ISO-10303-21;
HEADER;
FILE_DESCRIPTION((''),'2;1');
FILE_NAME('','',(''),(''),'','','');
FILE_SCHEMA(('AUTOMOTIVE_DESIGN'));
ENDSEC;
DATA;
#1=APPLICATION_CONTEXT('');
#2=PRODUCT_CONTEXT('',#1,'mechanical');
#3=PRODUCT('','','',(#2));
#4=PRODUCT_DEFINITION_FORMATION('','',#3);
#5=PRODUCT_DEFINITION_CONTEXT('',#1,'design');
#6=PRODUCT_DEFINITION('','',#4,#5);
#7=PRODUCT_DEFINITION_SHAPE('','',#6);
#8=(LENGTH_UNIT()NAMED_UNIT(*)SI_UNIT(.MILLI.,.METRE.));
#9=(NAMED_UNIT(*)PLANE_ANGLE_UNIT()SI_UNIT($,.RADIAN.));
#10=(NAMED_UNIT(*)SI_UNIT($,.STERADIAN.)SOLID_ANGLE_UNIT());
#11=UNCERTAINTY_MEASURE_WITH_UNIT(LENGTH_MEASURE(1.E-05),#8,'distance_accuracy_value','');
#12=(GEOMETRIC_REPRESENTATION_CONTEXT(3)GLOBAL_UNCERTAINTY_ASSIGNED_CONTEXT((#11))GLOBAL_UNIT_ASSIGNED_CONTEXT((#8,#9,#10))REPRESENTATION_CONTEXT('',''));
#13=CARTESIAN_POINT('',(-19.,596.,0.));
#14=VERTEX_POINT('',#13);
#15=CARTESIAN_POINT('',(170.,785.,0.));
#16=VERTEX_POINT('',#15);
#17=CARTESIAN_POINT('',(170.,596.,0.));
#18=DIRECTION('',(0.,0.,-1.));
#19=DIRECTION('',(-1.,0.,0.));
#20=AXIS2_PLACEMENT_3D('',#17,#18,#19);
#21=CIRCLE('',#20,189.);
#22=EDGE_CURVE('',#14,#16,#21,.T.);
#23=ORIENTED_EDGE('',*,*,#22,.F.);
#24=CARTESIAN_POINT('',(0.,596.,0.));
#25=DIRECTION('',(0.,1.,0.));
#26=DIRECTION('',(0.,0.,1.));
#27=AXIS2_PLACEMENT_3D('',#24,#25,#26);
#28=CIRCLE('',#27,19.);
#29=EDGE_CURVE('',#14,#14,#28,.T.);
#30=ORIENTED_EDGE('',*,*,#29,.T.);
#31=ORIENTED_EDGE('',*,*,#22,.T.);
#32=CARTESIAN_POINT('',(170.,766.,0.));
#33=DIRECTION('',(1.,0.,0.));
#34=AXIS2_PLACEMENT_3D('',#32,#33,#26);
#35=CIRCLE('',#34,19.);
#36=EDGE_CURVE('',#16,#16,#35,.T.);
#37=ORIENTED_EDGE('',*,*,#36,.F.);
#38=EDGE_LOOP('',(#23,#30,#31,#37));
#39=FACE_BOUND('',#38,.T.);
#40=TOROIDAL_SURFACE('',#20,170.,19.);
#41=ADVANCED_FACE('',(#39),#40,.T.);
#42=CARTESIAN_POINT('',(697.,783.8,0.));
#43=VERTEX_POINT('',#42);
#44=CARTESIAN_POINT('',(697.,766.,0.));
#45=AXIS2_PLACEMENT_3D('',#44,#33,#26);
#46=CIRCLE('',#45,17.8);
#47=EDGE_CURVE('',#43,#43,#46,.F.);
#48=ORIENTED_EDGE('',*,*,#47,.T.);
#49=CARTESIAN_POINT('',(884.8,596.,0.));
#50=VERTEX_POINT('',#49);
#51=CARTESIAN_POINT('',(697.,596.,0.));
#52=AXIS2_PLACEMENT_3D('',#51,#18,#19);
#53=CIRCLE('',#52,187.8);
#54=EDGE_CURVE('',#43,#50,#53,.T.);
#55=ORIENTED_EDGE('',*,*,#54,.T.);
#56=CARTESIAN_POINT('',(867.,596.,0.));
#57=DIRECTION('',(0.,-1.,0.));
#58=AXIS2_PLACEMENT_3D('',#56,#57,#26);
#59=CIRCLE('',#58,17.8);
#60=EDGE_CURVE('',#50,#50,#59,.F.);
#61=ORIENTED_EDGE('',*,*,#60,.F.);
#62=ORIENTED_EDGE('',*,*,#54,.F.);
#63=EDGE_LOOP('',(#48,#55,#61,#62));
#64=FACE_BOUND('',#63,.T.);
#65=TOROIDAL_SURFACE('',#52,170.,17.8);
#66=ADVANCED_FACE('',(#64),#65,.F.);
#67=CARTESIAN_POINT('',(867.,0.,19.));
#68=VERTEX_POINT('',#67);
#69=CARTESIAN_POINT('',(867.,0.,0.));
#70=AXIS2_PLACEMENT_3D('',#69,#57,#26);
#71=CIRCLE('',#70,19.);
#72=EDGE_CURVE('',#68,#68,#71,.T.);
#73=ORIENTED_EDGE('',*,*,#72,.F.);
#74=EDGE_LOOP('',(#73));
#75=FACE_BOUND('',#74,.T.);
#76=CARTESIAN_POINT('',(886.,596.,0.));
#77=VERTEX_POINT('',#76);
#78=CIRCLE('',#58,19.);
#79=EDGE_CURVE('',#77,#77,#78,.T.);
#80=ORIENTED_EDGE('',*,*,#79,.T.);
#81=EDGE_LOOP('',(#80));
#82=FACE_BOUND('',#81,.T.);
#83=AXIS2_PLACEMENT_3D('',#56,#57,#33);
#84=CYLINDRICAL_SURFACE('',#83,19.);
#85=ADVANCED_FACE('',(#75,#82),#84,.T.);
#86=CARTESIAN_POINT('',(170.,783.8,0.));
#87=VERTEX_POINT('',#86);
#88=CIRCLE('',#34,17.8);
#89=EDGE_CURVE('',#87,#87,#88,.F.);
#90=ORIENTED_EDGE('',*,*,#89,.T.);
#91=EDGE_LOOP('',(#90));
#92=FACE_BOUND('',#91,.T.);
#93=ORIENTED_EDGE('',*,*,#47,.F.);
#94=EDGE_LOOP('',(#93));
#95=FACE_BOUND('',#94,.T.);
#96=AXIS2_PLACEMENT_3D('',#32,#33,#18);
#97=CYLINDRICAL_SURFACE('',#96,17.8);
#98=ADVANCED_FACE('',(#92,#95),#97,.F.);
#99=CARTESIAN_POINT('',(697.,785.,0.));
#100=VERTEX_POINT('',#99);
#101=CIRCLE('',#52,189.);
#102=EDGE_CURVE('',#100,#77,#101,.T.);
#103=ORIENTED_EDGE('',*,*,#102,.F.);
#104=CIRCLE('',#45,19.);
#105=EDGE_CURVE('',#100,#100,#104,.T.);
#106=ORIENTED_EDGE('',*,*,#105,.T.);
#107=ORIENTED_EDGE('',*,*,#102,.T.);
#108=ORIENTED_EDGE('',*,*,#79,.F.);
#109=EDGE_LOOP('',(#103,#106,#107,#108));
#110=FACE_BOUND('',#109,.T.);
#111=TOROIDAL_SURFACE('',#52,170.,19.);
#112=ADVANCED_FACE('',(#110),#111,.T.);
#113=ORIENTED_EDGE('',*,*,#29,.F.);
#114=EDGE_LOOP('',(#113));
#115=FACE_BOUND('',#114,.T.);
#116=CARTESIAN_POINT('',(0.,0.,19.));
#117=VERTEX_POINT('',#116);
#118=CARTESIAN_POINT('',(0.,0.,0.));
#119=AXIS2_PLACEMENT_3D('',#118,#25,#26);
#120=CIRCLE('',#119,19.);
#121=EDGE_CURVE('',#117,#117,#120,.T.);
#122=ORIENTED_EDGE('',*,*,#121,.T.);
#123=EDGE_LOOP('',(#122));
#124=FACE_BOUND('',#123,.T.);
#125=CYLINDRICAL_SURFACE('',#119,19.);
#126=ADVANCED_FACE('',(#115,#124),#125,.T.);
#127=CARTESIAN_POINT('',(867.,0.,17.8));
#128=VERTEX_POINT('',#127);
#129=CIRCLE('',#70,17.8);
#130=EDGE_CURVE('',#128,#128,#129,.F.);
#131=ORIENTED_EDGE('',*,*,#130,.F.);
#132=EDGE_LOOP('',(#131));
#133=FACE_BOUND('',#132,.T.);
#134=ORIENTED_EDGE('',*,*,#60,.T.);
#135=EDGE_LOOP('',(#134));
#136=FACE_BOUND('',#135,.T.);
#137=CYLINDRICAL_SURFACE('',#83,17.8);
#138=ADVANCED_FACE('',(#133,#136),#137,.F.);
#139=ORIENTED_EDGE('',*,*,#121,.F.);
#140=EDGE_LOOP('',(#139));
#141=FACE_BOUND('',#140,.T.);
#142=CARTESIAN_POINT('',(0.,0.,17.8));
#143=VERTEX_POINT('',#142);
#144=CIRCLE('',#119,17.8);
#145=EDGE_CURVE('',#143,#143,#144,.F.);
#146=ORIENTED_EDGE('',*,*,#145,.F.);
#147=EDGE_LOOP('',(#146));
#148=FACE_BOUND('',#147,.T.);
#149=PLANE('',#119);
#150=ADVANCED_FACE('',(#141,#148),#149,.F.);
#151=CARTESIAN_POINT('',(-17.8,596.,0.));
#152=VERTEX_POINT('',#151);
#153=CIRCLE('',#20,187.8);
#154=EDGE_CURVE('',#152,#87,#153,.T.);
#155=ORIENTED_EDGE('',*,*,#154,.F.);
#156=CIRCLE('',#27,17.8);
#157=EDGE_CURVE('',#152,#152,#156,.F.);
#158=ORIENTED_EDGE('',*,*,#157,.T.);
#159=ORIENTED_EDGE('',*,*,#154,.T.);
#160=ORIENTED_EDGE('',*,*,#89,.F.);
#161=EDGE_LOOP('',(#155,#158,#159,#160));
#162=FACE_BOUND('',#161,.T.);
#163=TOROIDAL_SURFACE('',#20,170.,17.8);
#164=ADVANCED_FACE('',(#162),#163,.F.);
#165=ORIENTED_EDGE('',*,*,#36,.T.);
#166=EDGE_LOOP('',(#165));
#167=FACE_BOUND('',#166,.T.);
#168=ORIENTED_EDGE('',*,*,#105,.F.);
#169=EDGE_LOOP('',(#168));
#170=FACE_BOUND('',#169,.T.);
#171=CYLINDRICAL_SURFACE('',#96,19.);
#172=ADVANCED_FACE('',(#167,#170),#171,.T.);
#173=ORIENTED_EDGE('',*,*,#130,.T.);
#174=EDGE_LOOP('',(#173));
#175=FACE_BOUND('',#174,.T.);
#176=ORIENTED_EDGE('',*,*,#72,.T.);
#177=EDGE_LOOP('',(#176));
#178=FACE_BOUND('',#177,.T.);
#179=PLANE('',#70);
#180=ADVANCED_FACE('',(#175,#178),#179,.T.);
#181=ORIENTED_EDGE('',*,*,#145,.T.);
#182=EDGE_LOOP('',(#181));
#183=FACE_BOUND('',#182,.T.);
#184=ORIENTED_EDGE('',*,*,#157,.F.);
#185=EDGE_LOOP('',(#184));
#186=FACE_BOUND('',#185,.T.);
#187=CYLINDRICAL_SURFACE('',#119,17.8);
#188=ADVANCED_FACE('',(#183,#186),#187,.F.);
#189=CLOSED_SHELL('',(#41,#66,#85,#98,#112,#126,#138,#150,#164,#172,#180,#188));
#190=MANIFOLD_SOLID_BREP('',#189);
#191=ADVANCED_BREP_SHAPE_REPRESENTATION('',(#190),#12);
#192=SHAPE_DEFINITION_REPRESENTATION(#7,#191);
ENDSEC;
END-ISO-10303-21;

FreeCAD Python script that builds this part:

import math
import FreeCAD as App
import Part
import Sketcher

V = App.Vector

doc = App.newDocument("Part")
params = doc.addObject("Spreadsheet::Sheet", "Params")
for row, (alias, value) in enumerate([
    ("sketch1_diameter", "38 mm"),
    ("sketch1_diameter2", "35.6 mm"),
    ("sketch2_radius", "170 mm"),
    ("sketch2_width", "527 mm"),
    ("sketch2_height", "596 mm"),
], start=1):
    params.set(f"A{row}", alias)
    params.set(f"B{row}", "=" + value)
    params.setAlias(f"B{row}", alias)

body = doc.addObject("PartDesign::Body", "Body")

sketch1 = body.newObject("Sketcher::SketchObject", "Sketch")
sketch1.AttachmentSupport = (doc.getObject("XZ_Plane"), [""])
sketch1.MapMode = "FlatFace"
sketch1.addGeometry([
    Part.Circle(V(0, 0, 0), V(0, 0, 1), 19),
    Part.Circle(V(0, 0, 0), V(0, 0, 1), 18),
], False)
sketch1.addConstraint([
    Sketcher.Constraint("Coincident", 0, 3, -1, 1),
    Sketcher.Constraint("Coincident", 1, 3, -1, 1),
    Sketcher.Constraint("Diameter", 0, 38.0),
    Sketcher.Constraint("Diameter", 1, 35.6),
])
sketch1.setExpression("Constraints[2]", "Params.sketch1_diameter")
sketch1.setExpression("Constraints[3]", "Params.sketch1_diameter2")

sketch2 = body.newObject("Sketcher::SketchObject", "Sketch001")
sketch2.AttachmentSupport = (doc.getObject("XY_Plane"), [""])
sketch2.MapMode = "FlatFace"
sketch2.addGeometry([
    Part.LineSegment(V(0, 0, 0), V(0, 596, 0)),
    Part.ArcOfCircle(Part.Circle(V(170, 596, 0), V(0, 0, 1), 170), math.radians(90), math.radians(180)),
    Part.LineSegment(V(170, 766, 0), V(697, 766, 0)),
    Part.ArcOfCircle(Part.Circle(V(697, 596, 0), V(0, 0, 1), 170), math.radians(0), math.radians(90)),
    Part.LineSegment(V(867, 596, 0), V(867, 0, 0)),
], False)
sketch2.addConstraint([
    Sketcher.Constraint("Tangent", 0, 2, 1, 2),
    Sketcher.Constraint("Tangent", 1, 1, 2, 1),
    Sketcher.Constraint("Tangent", 2, 2, 3, 2),
    Sketcher.Constraint("Tangent", 3, 1, 4, 1),
    Sketcher.Constraint("Vertical", 0),
    Sketcher.Constraint("Horizontal", 2),
    Sketcher.Constraint("Vertical", 4),
    Sketcher.Constraint("Coincident", 0, 1, -1, 1),
    Sketcher.Constraint("Equal", 1, 3),
    Sketcher.Constraint("PointOnObject", 4, 2, -1),
    Sketcher.Constraint("Radius", 1, 170.0),
    Sketcher.Constraint("DistanceX", 2, 1, 2, 2, 527.0),
    Sketcher.Constraint("DistanceY", 0, 1, 0, 2, 596.0),
])
sketch2.setExpression("Constraints[10]", "Params.sketch2_radius")
sketch2.setExpression("Constraints[11]", "Params.sketch2_width")
sketch2.setExpression("Constraints[12]", "Params.sketch2_height")
doc.recompute()

additivepipe = body.newObject("PartDesign::AdditivePipe", "AdditivePipe")
additivepipe.Profile = sketch1
additivepipe.Spine = (sketch2, ["Edge1", "Edge2", "Edge3", "Edge4", "Edge5"])

doc.recompute()
